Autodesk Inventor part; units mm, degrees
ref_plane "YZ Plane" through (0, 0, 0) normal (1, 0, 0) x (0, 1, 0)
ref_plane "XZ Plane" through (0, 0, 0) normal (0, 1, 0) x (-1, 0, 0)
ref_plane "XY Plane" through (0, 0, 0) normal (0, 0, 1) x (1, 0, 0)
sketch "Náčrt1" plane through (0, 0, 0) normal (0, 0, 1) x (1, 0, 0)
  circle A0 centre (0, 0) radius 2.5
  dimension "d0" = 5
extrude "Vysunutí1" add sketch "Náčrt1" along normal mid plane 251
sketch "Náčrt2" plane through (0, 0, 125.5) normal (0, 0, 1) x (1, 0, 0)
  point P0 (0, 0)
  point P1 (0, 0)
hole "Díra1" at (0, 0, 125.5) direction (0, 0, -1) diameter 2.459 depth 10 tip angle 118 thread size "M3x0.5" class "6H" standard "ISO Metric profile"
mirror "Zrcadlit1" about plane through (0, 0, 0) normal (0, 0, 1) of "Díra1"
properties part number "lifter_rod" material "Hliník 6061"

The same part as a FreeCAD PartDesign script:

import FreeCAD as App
import Part
import Sketcher
from FreeCAD import Vector

doc = App.newDocument("Part")
body = doc.addObject("PartDesign::Body", "Body")

sketch1 = body.newObject("Sketcher::SketchObject", "Sketch")
sketch1.AttachmentSupport = (doc.getObject("XY_Plane"), [""])
sketch1.MapMode = "FlatFace"
sketch1.addGeometry(Part.Circle(Vector(0, 0, 0), Vector(0, 0, 1), 2.5), False)
sketch1.addConstraint(Sketcher.Constraint("Coincident", 0, 3, -1, 1))
sketch1.addConstraint(Sketcher.Constraint("Diameter", 0, 5.0))
pad1 = body.newObject("PartDesign::Pad", "Pad")
pad1.Profile = sketch1
pad1.Length = 251
pad1.Midplane = True

sketch2 = body.newObject("Sketcher::SketchObject", "Sketch001")
sketch2.AttachmentSupport = (doc.getObject("XY_Plane"), [""])
sketch2.MapMode = "FlatFace"
sketch2.AttachmentOffset = App.Placement(Vector(0, 0, 125.5), App.Rotation())
sketch2.addGeometry(Part.Circle(Vector(0, 0, 0), Vector(0, 0, 1), 1.2), False)
sketch2.addConstraint(Sketcher.Constraint("Coincident", 0, 3, -1, 1))
sketch2.addConstraint(Sketcher.Constraint("Diameter", 0, 2.459))
doc.recompute()
hole = body.newObject("PartDesign::Hole", "Hole")
hole.Profile = sketch2
hole.ThreadType = "None"
hole.Diameter = 2.459
hole.DepthType = "Dimension"
hole.Depth = 10
hole.DrillPoint = "Angled"
hole.DrillPointAngle = 118
doc.recompute()

mirrored = body.newObject("PartDesign::Mirrored", "Mirrored")
mirrored.Originals = [hole]
mirrored.MirrorPlane = (doc.getObject("XY_Plane"), [""])
body.Tip = mirrored

doc.recompute()
